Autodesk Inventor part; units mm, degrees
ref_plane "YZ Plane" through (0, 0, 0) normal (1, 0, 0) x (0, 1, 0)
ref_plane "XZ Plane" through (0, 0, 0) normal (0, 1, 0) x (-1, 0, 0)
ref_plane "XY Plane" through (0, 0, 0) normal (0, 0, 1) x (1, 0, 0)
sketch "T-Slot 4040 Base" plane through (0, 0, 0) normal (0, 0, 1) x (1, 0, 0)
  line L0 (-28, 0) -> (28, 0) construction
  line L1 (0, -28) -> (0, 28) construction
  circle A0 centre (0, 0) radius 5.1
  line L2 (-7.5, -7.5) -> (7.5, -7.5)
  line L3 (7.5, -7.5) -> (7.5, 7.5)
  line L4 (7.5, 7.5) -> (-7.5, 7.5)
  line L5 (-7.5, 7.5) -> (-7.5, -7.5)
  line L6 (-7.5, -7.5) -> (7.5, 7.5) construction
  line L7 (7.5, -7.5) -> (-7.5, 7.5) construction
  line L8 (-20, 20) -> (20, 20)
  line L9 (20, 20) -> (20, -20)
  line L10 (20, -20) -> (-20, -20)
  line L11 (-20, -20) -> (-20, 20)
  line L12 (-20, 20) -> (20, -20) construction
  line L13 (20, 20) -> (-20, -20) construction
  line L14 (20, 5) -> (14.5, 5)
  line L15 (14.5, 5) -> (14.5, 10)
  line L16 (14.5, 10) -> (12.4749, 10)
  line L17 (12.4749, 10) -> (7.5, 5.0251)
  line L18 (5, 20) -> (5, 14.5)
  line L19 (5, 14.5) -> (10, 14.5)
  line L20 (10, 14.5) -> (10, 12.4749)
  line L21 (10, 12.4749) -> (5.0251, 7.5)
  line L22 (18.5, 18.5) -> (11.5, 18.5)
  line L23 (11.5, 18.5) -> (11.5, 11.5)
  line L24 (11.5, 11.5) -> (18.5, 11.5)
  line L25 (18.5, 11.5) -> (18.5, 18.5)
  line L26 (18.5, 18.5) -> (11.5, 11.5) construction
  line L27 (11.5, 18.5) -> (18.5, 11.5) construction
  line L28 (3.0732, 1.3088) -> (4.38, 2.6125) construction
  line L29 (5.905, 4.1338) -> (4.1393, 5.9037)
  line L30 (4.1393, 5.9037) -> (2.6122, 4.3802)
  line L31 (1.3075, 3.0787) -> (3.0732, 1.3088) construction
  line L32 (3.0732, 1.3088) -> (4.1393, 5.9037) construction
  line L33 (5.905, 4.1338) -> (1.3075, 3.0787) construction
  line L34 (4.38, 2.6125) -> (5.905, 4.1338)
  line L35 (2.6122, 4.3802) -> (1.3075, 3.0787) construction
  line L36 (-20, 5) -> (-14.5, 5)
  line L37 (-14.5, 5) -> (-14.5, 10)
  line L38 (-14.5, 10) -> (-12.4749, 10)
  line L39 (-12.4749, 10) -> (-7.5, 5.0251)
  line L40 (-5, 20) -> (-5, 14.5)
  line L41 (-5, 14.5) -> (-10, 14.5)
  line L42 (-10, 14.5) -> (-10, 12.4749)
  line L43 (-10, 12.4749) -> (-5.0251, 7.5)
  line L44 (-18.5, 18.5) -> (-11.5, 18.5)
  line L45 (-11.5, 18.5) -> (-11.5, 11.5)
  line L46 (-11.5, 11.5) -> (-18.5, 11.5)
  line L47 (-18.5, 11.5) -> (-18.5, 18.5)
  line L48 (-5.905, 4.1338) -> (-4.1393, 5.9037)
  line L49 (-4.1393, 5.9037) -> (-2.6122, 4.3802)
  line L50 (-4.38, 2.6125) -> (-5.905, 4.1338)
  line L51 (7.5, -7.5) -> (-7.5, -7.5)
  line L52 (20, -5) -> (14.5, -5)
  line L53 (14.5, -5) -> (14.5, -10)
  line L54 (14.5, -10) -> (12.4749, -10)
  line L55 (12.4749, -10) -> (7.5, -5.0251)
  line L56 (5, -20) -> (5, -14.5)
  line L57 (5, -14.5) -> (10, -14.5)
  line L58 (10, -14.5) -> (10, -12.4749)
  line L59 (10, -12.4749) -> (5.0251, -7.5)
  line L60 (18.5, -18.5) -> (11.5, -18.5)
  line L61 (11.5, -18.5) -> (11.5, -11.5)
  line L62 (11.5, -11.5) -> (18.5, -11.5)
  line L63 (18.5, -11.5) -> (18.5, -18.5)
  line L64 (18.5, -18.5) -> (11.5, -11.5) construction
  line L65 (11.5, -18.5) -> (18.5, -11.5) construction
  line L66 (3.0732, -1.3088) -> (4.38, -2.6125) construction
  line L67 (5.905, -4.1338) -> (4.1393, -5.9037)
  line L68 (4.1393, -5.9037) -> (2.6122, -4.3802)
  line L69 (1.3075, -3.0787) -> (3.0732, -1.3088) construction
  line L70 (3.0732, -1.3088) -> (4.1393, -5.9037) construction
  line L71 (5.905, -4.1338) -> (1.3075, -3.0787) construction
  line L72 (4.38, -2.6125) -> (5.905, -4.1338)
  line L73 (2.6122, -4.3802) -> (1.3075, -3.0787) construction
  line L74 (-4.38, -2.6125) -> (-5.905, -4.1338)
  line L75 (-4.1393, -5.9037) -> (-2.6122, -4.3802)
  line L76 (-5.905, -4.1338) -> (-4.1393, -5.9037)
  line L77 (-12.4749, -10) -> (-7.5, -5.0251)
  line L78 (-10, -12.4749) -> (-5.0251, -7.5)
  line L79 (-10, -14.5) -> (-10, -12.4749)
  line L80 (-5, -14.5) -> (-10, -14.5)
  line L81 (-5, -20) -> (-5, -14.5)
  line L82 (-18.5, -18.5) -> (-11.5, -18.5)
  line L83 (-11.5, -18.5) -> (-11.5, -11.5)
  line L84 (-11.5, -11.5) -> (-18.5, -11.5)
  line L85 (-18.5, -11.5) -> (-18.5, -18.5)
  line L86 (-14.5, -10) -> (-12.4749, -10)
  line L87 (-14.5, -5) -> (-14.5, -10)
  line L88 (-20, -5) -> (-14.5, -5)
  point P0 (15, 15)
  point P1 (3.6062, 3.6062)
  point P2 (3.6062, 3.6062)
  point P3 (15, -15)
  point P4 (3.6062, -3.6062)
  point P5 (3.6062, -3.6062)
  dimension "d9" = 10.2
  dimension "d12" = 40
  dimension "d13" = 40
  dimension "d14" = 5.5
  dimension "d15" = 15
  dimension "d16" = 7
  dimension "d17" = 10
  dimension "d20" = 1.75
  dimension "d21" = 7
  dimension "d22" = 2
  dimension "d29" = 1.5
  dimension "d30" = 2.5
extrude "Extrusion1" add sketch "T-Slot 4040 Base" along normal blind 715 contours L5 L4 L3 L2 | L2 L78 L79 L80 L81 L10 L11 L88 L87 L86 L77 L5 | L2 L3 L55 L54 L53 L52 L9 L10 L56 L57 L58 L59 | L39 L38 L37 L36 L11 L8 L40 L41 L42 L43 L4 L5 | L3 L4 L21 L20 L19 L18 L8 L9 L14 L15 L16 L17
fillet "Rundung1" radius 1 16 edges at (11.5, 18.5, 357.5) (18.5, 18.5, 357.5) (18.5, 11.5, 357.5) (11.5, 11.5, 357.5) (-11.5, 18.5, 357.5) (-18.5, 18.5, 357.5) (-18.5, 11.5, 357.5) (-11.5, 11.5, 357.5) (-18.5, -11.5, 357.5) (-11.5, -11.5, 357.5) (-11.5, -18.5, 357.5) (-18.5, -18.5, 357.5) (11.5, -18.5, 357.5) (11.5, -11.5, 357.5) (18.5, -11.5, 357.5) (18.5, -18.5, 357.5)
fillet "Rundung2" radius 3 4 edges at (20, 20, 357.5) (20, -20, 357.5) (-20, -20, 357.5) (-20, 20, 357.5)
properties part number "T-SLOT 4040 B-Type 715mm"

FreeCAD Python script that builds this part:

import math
import FreeCAD as App
import Part
import Sketcher
from FreeCAD import Vector
Q = App.Units.Quantity


def edges_at(feature, points):
    """Names of the edges that pass closest to the given points."""
    edges = feature.Shape.Edges
    near = lambda p: min(range(len(edges)), key=lambda i: edges[i].distToShape(Part.Vertex(*p))[0])
    return sorted({f"Edge{near(p) + 1}" for p in points})


def add_polygon(sketch, points):
    """Adds a closed chain of lines whose ends are joined by coincident constraints."""
    first, n = sketch.GeometryCount, len(points)
    for a, b in zip(points, points[1:] + points[:1]):
        sketch.addGeometry(Part.LineSegment(App.Vector(*a, 0), App.Vector(*b, 0)), False)
    for i in range(n):
        sketch.addConstraint(Sketcher.Constraint("Coincident", first + i, 2, first + (i + 1) % n, 1))

doc = App.newDocument("Part")
body = doc.addObject("PartDesign::Body", "Body")

# Sketch on XY plane
sketch1 = body.newObject("Sketcher::SketchObject", "Sketch")
sketch1.AttachmentSupport = (doc.getObject("XY_Plane"), [""])
sketch1.MapMode = "FlatFace"
add_polygon(sketch1, [(-7.5, 5.0251), (-7.5, -5.0251), (-12.4749, -10), (-14.5, -10), (-14.5, -5), (-20, -5), (-20, -20), (-5, -20), (-5, -14.5), (-10, -14.5), (-10, -12.4749), (-5.0251, -7.5), (5.0251, -7.5), (10, -12.4749), (10, -14.5), (5, -14.5), (5, -20), (20, -20), (20, -5), (14.5, -5), (14.5, -10), (12.4749, -10), (7.5, -5.0251), (7.5, 5.0251), (12.4749, 10), (14.5, 10), (14.5, 5), (20, 5), (20, 20), (5, 20), (5, 14.5), (10, 14.5), (10, 12.4749), (5.0251, 7.5), (-5.0251, 7.5), (-10, 12.4749), (-10, 14.5), (-5, 14.5), (-5, 20), (-20, 20), (-20, 5), (-14.5, 5), (-14.5, 10), (-12.4749, 10)])  # lines 0-43
sketch1.addGeometry(Part.ArcOfCircle(Part.Circle(Vector(0, 0, 0), Vector(0, 0, 1), 5.1), math.radians(-30.814436), math.radians(30.814436)), False)  # 44
sketch1.addGeometry(Part.LineSegment(Vector(4.38, -2.6125, 0), Vector(5.905, -4.1338, 0)), False)  # 45
sketch1.addGeometry(Part.LineSegment(Vector(5.905, -4.1338, 0), Vector(4.1393, -5.9037, 0)), False)  # 46
sketch1.addGeometry(Part.LineSegment(Vector(4.1393, -5.9037, 0), Vector(2.6122, -4.3802, 0)), False)  # 47
sketch1.addGeometry(Part.ArcOfCircle(Part.Circle(Vector(0, 0, 0), Vector(0, 0, 1), 5.1), math.radians(-120.810391), math.radians(-59.189609)), False)  # 48
sketch1.addGeometry(Part.LineSegment(Vector(-2.6122, -4.3802, 0), Vector(-4.1393, -5.9037, 0)), False)  # 49
sketch1.addGeometry(Part.LineSegment(Vector(-4.1393, -5.9037, 0), Vector(-5.905, -4.1338, 0)), False)  # 50
sketch1.addGeometry(Part.LineSegment(Vector(-5.905, -4.1338, 0), Vector(-4.38, -2.6125, 0)), False)  # 51
sketch1.addGeometry(Part.ArcOfCircle(Part.Circle(Vector(0, 0, 0), Vector(0, 0, 1), 5.1), math.radians(149.185564), math.radians(210.814436)), False)  # 52
sketch1.addGeometry(Part.LineSegment(Vector(-4.38, 2.6125, 0), Vector(-5.905, 4.1338, 0)), False)  # 53
sketch1.addGeometry(Part.LineSegment(Vector(-5.905, 4.1338, 0), Vector(-4.1393, 5.9037, 0)), False)  # 54
sketch1.addGeometry(Part.LineSegment(Vector(-4.1393, 5.9037, 0), Vector(-2.6122, 4.3802, 0)), False)  # 55
sketch1.addGeometry(Part.ArcOfCircle(Part.Circle(Vector(0, 0, 0), Vector(0, 0, 1), 5.1), math.radians(59.189609), math.radians(120.810391)), False)  # 56
sketch1.addGeometry(Part.LineSegment(Vector(2.6122, 4.3802, 0), Vector(4.1393, 5.9037, 0)), False)  # 57
sketch1.addGeometry(Part.LineSegment(Vector(4.1393, 5.9037, 0), Vector(5.905, 4.1338, 0)), False)  # 58
sketch1.addGeometry(Part.LineSegment(Vector(5.905, 4.1338, 0), Vector(4.38, 2.6125, 0)), False)  # 59
add_polygon(sketch1, [(-18.5, -11.5), (-11.5, -11.5), (-11.5, -18.5), (-18.5, -18.5)])  # lines 60-63
add_polygon(sketch1, [(-11.5, 18.5), (-11.5, 11.5), (-18.5, 11.5), (-18.5, 18.5)])  # lines 64-67
add_polygon(sketch1, [(18.5, 11.5), (11.5, 11.5), (11.5, 18.5), (18.5, 18.5)])  # lines 68-71
add_polygon(sketch1, [(11.5, -18.5), (11.5, -11.5), (18.5, -11.5), (18.5, -18.5)])  # lines 72-75
sketch1.addConstraint([
    Sketcher.Constraint("Coincident", 44, 1, 45, 1),
    Sketcher.Constraint("Coincident", 45, 2, 46, 1),
    Sketcher.Constraint("Coincident", 46, 2, 47, 1),
    Sketcher.Constraint("Coincident", 47, 2, 48, 2),
    Sketcher.Constraint("Coincident", 48, 1, 49, 1),
    Sketcher.Constraint("Coincident", 49, 2, 50, 1),
    Sketcher.Constraint("Coincident", 50, 2, 51, 1),
    Sketcher.Constraint("Coincident", 51, 2, 52, 2),
    Sketcher.Constraint("Coincident", 52, 1, 53, 1),
    Sketcher.Constraint("Coincident", 53, 2, 54, 1),
    Sketcher.Constraint("Coincident", 54, 2, 55, 1),
    Sketcher.Constraint("Coincident", 55, 2, 56, 2),
    Sketcher.Constraint("Coincident", 56, 1, 57, 1),
    Sketcher.Constraint("Coincident", 57, 2, 58, 1),
    Sketcher.Constraint("Coincident", 58, 2, 59, 1),
    Sketcher.Constraint("Coincident", 59, 2, 44, 2),
    Sketcher.Constraint("Vertical", 0),
    Sketcher.Constraint("Horizontal", 2),
    Sketcher.Constraint("Vertical", 3),
    Sketcher.Constraint("Horizontal", 4),
    Sketcher.Constraint("Vertical", 5),
    Sketcher.Constraint("Horizontal", 6),
    Sketcher.Constraint("Vertical", 7),
    Sketcher.Constraint("Horizontal", 8),
    Sketcher.Constraint("Vertical", 9),
    Sketcher.Constraint("Horizontal", 11),
    Sketcher.Constraint("Vertical", 13),
    Sketcher.Constraint("Horizontal", 14),
    Sketcher.Constraint("Vertical", 15),
    Sketcher.Constraint("Horizontal", 16),
    Sketcher.Constraint("Vertical", 17),
    Sketcher.Constraint("Horizontal", 18),
    Sketcher.Constraint("Vertical", 19),
    Sketcher.Constraint("Horizontal", 20),
    Sketcher.Constraint("Vertical", 22),
    Sketcher.Constraint("Horizontal", 24),
    Sketcher.Constraint("Vertical", 25),
    Sketcher.Constraint("Horizontal", 26),
    Sketcher.Constraint("Vertical", 27),
    Sketcher.Constraint("Horizontal", 28),
    Sketcher.Constraint("Vertical", 29),
    Sketcher.Constraint("Horizontal", 30),
    Sketcher.Constraint("Vertical", 31),
    Sketcher.Constraint("Horizontal", 33),
    Sketcher.Constraint("Vertical", 35),
    Sketcher.Constraint("Horizontal", 36),
    Sketcher.Constraint("Vertical", 37),
    Sketcher.Constraint("Horizontal", 38),
    Sketcher.Constraint("Vertical", 39),
    Sketcher.Constraint("Horizontal", 40),
    Sketcher.Constraint("Vertical", 41),
    Sketcher.Constraint("Horizontal", 42),
    Sketcher.Constraint("Horizontal", 60),
    Sketcher.Constraint("Vertical", 61),
    Sketcher.Constraint("Horizontal", 62),
    Sketcher.Constraint("Vertical", 63),
    Sketcher.Constraint("Vertical", 64),
    Sketcher.Constraint("Horizontal", 65),
    Sketcher.Constraint("Vertical", 66),
    Sketcher.Constraint("Horizontal", 67),
    Sketcher.Constraint("Horizontal", 68),
    Sketcher.Constraint("Vertical", 69),
    Sketcher.Constraint("Horizontal", 70),
    Sketcher.Constraint("Vertical", 71),
    Sketcher.Constraint("Vertical", 72),
    Sketcher.Constraint("Horizontal", 73),
    Sketcher.Constraint("Vertical", 74),
    Sketcher.Constraint("Horizontal", 75),
    Sketcher.Constraint("Coincident", 44, 3, -1, 1),
    Sketcher.Constraint("Coincident", 48, 3, -1, 1),
    Sketcher.Constraint("Coincident", 52, 3, -1, 1),
    Sketcher.Constraint("Coincident", 56, 3, -1, 1),
    Sketcher.Constraint("Equal", 44, 48),
    Sketcher.Constraint("Equal", 48, 52),
    Sketcher.Constraint("Equal", 52, 56),
    Sketcher.Constraint("Symmetric", 0, 2, 22, 2, -1, 1),
    Sketcher.Constraint("Symmetric", 1, 2, 23, 2, -1, 1),
    Sketcher.Constraint("Symmetric", 3, 2, 25, 2, -1, 1),
    Sketcher.Constraint("Symmetric", 5, 2, 27, 2, -1, 1),
    Sketcher.Constraint("Symmetric", 7, 2, 29, 2, -1, 1),
    Sketcher.Constraint("Symmetric", 9, 2, 31, 2, -1, 1),
    Sketcher.Constraint("Symmetric", 10, 2, 32, 2, -1, 1),
    Sketcher.Constraint("Symmetric", 12, 2, 34, 2, -1, 1),
    Sketcher.Constraint("Symmetric", 14, 2, 36, 2, -1, 1),
    Sketcher.Constraint("Symmetric", 16, 2, 38, 2, -1, 1),
    Sketcher.Constraint("Symmetric", 18, 2, 40, 2, -1, 1),
    Sketcher.Constraint("Symmetric", 20, 2, 42, 2, -1, 1),
    Sketcher.Constraint("Symmetric", 45, 2, 53, 2, -1, 1),
    Sketcher.Constraint("Symmetric", 46, 2, 54, 2, -1, 1),
    Sketcher.Constraint("Symmetric", 49, 2, 57, 2, -1, 1),
    Sketcher.Constraint("Symmetric", 50, 2, 58, 2, -1, 1),
    Sketcher.Constraint("Symmetric", 60, 2, 68, 2, -1, 1),
    Sketcher.Constraint("Symmetric", 62, 2, 70, 2, -1, 1),
    Sketcher.Constraint("Symmetric", 64, 2, 72, 2, -1, 1),
    Sketcher.Constraint("Symmetric", 66, 2, 74, 2, -1, 1),
    Sketcher.Constraint("Symmetric", 9, 2, 12, 2, -2),
    Sketcher.Constraint("Symmetric", 7, 2, 14, 2, -2),
    Sketcher.Constraint("Symmetric", 5, 2, 16, 2, -2),
    Sketcher.Constraint("Symmetric", 3, 2, 18, 2, -2),
    Sketcher.Constraint("Symmetric", 1, 2, 20, 2, -2),
    Sketcher.Constraint("Symmetric", 46, 2, 49, 2, -2),
    Sketcher.Constraint("Symmetric", 45, 2, 50, 2, -2),
    Sketcher.Constraint("Symmetric", 64, 2, 68, 2, -2),
    Sketcher.Constraint("Symmetric", 66, 2, 70, 2, -2),
    Sketcher.Constraint("Parallel", 1, 10),
    Sketcher.Constraint("Perpendicular", 10, 12),
    Sketcher.Constraint("Parallel", 12, 21),
    Sketcher.Constraint("Perpendicular", 32, 34),
    Sketcher.Constraint("Parallel", 34, 43),
    Sketcher.Constraint("Perpendicular", 45, 46),
    Sketcher.Constraint("Perpendicular", 46, 47),
    Sketcher.Constraint("Perpendicular", 49, 50),
    Sketcher.Constraint("Perpendicular", 50, 51),
    Sketcher.Constraint("Parallel", 47, 53),
    Sketcher.Constraint("Perpendicular", 54, 55),
    Sketcher.Constraint("Parallel", 51, 57),
    Sketcher.Constraint("Perpendicular", 58, 59),
    Sketcher.Constraint("Horizontal", 0, 2, 21, 2),
    Sketcher.Constraint("Equal", 33, 0),
    Sketcher.Constraint("Equal", 36, 3),
    Sketcher.Constraint("Equal", 38, 5),
    Sketcher.Constraint("Equal", 40, 7),
    Sketcher.Constraint("Equal", 42, 9),
    Sketcher.Constraint("Equal", 75, 61),
    Sketcher.Constraint("Equal", 1, 10),
    Sketcher.Constraint("Radius", 44, Q("5.1 mm")),
    Sketcher.Constraint("DistanceX", 6, 1, 6, 2, Q("15 mm")),
    Sketcher.Constraint("DistanceX", 60, 1, 60, 2, Q("7 mm")),
    Sketcher.Constraint("DistanceX", 4, 2, 4, 1, Q("5.5 mm")),
    Sketcher.Constraint("DistanceY", 1, 2, -1, 1, Q("10 mm")),
    Sketcher.Constraint("Distance", 46, Q("2.5 mm")),
    Sketcher.Constraint("DistanceX", 8, 2, 8, 1, Q("5 mm")),
    Sketcher.Constraint("DistanceX", 0, 2, -1, 1, Q("7.5 mm")),
    Sketcher.Constraint("DistanceX", 60, 2, -1, 1, Q("11.5 mm")),
    Sketcher.Constraint("DistanceY", 60, 2, -1, 1, Q("11.5 mm")),
    Sketcher.Constraint("Angle", 45, Q("-44.9304 deg")),
    Sketcher.Constraint("DistanceX", 2, 2, 2, 1, Q("2.025 mm")),
    Sketcher.Constraint("DistanceX", -1, 1, 44, 1, Q("4.38 mm")),
    Sketcher.Constraint("Distance", 45, Q("2.154 mm")),
])
pad1 = body.newObject("PartDesign::Pad", "Pad")
pad1.Profile = sketch1
pad1.Length = 715
doc.recompute()

fillet = body.newObject("PartDesign::Fillet", "Fillet")
fillet.Base = (pad1, edges_at(pad1, [
    (11.5, 18.5, 357.5),
    (18.5, 18.5, 357.5),
    (18.5, 11.5, 357.5),
    (11.5, 11.5, 357.5),
    (-11.5, 18.5, 357.5),
    (-18.5, 18.5, 357.5),
    (-18.5, 11.5, 357.5),
    (-11.5, 11.5, 357.5),
    (-18.5, -11.5, 357.5),
    (-11.5, -11.5, 357.5),
    (-11.5, -18.5, 357.5),
    (-18.5, -18.5, 357.5),
    (11.5, -18.5, 357.5),
    (11.5, -11.5, 357.5),
    (18.5, -11.5, 357.5),
    (18.5, -18.5, 357.5),
]))
fillet.Radius = 1
doc.recompute()

fillet2 = body.newObject("PartDesign::Fillet", "Fillet001")
fillet2.Base = (fillet, edges_at(fillet, [
    (20, 20, 357.5),
    (20, -20, 357.5),
    (-20, -20, 357.5),
    (-20, 20, 357.5),
]))
fillet2.Radius = 3

doc.recompute()
